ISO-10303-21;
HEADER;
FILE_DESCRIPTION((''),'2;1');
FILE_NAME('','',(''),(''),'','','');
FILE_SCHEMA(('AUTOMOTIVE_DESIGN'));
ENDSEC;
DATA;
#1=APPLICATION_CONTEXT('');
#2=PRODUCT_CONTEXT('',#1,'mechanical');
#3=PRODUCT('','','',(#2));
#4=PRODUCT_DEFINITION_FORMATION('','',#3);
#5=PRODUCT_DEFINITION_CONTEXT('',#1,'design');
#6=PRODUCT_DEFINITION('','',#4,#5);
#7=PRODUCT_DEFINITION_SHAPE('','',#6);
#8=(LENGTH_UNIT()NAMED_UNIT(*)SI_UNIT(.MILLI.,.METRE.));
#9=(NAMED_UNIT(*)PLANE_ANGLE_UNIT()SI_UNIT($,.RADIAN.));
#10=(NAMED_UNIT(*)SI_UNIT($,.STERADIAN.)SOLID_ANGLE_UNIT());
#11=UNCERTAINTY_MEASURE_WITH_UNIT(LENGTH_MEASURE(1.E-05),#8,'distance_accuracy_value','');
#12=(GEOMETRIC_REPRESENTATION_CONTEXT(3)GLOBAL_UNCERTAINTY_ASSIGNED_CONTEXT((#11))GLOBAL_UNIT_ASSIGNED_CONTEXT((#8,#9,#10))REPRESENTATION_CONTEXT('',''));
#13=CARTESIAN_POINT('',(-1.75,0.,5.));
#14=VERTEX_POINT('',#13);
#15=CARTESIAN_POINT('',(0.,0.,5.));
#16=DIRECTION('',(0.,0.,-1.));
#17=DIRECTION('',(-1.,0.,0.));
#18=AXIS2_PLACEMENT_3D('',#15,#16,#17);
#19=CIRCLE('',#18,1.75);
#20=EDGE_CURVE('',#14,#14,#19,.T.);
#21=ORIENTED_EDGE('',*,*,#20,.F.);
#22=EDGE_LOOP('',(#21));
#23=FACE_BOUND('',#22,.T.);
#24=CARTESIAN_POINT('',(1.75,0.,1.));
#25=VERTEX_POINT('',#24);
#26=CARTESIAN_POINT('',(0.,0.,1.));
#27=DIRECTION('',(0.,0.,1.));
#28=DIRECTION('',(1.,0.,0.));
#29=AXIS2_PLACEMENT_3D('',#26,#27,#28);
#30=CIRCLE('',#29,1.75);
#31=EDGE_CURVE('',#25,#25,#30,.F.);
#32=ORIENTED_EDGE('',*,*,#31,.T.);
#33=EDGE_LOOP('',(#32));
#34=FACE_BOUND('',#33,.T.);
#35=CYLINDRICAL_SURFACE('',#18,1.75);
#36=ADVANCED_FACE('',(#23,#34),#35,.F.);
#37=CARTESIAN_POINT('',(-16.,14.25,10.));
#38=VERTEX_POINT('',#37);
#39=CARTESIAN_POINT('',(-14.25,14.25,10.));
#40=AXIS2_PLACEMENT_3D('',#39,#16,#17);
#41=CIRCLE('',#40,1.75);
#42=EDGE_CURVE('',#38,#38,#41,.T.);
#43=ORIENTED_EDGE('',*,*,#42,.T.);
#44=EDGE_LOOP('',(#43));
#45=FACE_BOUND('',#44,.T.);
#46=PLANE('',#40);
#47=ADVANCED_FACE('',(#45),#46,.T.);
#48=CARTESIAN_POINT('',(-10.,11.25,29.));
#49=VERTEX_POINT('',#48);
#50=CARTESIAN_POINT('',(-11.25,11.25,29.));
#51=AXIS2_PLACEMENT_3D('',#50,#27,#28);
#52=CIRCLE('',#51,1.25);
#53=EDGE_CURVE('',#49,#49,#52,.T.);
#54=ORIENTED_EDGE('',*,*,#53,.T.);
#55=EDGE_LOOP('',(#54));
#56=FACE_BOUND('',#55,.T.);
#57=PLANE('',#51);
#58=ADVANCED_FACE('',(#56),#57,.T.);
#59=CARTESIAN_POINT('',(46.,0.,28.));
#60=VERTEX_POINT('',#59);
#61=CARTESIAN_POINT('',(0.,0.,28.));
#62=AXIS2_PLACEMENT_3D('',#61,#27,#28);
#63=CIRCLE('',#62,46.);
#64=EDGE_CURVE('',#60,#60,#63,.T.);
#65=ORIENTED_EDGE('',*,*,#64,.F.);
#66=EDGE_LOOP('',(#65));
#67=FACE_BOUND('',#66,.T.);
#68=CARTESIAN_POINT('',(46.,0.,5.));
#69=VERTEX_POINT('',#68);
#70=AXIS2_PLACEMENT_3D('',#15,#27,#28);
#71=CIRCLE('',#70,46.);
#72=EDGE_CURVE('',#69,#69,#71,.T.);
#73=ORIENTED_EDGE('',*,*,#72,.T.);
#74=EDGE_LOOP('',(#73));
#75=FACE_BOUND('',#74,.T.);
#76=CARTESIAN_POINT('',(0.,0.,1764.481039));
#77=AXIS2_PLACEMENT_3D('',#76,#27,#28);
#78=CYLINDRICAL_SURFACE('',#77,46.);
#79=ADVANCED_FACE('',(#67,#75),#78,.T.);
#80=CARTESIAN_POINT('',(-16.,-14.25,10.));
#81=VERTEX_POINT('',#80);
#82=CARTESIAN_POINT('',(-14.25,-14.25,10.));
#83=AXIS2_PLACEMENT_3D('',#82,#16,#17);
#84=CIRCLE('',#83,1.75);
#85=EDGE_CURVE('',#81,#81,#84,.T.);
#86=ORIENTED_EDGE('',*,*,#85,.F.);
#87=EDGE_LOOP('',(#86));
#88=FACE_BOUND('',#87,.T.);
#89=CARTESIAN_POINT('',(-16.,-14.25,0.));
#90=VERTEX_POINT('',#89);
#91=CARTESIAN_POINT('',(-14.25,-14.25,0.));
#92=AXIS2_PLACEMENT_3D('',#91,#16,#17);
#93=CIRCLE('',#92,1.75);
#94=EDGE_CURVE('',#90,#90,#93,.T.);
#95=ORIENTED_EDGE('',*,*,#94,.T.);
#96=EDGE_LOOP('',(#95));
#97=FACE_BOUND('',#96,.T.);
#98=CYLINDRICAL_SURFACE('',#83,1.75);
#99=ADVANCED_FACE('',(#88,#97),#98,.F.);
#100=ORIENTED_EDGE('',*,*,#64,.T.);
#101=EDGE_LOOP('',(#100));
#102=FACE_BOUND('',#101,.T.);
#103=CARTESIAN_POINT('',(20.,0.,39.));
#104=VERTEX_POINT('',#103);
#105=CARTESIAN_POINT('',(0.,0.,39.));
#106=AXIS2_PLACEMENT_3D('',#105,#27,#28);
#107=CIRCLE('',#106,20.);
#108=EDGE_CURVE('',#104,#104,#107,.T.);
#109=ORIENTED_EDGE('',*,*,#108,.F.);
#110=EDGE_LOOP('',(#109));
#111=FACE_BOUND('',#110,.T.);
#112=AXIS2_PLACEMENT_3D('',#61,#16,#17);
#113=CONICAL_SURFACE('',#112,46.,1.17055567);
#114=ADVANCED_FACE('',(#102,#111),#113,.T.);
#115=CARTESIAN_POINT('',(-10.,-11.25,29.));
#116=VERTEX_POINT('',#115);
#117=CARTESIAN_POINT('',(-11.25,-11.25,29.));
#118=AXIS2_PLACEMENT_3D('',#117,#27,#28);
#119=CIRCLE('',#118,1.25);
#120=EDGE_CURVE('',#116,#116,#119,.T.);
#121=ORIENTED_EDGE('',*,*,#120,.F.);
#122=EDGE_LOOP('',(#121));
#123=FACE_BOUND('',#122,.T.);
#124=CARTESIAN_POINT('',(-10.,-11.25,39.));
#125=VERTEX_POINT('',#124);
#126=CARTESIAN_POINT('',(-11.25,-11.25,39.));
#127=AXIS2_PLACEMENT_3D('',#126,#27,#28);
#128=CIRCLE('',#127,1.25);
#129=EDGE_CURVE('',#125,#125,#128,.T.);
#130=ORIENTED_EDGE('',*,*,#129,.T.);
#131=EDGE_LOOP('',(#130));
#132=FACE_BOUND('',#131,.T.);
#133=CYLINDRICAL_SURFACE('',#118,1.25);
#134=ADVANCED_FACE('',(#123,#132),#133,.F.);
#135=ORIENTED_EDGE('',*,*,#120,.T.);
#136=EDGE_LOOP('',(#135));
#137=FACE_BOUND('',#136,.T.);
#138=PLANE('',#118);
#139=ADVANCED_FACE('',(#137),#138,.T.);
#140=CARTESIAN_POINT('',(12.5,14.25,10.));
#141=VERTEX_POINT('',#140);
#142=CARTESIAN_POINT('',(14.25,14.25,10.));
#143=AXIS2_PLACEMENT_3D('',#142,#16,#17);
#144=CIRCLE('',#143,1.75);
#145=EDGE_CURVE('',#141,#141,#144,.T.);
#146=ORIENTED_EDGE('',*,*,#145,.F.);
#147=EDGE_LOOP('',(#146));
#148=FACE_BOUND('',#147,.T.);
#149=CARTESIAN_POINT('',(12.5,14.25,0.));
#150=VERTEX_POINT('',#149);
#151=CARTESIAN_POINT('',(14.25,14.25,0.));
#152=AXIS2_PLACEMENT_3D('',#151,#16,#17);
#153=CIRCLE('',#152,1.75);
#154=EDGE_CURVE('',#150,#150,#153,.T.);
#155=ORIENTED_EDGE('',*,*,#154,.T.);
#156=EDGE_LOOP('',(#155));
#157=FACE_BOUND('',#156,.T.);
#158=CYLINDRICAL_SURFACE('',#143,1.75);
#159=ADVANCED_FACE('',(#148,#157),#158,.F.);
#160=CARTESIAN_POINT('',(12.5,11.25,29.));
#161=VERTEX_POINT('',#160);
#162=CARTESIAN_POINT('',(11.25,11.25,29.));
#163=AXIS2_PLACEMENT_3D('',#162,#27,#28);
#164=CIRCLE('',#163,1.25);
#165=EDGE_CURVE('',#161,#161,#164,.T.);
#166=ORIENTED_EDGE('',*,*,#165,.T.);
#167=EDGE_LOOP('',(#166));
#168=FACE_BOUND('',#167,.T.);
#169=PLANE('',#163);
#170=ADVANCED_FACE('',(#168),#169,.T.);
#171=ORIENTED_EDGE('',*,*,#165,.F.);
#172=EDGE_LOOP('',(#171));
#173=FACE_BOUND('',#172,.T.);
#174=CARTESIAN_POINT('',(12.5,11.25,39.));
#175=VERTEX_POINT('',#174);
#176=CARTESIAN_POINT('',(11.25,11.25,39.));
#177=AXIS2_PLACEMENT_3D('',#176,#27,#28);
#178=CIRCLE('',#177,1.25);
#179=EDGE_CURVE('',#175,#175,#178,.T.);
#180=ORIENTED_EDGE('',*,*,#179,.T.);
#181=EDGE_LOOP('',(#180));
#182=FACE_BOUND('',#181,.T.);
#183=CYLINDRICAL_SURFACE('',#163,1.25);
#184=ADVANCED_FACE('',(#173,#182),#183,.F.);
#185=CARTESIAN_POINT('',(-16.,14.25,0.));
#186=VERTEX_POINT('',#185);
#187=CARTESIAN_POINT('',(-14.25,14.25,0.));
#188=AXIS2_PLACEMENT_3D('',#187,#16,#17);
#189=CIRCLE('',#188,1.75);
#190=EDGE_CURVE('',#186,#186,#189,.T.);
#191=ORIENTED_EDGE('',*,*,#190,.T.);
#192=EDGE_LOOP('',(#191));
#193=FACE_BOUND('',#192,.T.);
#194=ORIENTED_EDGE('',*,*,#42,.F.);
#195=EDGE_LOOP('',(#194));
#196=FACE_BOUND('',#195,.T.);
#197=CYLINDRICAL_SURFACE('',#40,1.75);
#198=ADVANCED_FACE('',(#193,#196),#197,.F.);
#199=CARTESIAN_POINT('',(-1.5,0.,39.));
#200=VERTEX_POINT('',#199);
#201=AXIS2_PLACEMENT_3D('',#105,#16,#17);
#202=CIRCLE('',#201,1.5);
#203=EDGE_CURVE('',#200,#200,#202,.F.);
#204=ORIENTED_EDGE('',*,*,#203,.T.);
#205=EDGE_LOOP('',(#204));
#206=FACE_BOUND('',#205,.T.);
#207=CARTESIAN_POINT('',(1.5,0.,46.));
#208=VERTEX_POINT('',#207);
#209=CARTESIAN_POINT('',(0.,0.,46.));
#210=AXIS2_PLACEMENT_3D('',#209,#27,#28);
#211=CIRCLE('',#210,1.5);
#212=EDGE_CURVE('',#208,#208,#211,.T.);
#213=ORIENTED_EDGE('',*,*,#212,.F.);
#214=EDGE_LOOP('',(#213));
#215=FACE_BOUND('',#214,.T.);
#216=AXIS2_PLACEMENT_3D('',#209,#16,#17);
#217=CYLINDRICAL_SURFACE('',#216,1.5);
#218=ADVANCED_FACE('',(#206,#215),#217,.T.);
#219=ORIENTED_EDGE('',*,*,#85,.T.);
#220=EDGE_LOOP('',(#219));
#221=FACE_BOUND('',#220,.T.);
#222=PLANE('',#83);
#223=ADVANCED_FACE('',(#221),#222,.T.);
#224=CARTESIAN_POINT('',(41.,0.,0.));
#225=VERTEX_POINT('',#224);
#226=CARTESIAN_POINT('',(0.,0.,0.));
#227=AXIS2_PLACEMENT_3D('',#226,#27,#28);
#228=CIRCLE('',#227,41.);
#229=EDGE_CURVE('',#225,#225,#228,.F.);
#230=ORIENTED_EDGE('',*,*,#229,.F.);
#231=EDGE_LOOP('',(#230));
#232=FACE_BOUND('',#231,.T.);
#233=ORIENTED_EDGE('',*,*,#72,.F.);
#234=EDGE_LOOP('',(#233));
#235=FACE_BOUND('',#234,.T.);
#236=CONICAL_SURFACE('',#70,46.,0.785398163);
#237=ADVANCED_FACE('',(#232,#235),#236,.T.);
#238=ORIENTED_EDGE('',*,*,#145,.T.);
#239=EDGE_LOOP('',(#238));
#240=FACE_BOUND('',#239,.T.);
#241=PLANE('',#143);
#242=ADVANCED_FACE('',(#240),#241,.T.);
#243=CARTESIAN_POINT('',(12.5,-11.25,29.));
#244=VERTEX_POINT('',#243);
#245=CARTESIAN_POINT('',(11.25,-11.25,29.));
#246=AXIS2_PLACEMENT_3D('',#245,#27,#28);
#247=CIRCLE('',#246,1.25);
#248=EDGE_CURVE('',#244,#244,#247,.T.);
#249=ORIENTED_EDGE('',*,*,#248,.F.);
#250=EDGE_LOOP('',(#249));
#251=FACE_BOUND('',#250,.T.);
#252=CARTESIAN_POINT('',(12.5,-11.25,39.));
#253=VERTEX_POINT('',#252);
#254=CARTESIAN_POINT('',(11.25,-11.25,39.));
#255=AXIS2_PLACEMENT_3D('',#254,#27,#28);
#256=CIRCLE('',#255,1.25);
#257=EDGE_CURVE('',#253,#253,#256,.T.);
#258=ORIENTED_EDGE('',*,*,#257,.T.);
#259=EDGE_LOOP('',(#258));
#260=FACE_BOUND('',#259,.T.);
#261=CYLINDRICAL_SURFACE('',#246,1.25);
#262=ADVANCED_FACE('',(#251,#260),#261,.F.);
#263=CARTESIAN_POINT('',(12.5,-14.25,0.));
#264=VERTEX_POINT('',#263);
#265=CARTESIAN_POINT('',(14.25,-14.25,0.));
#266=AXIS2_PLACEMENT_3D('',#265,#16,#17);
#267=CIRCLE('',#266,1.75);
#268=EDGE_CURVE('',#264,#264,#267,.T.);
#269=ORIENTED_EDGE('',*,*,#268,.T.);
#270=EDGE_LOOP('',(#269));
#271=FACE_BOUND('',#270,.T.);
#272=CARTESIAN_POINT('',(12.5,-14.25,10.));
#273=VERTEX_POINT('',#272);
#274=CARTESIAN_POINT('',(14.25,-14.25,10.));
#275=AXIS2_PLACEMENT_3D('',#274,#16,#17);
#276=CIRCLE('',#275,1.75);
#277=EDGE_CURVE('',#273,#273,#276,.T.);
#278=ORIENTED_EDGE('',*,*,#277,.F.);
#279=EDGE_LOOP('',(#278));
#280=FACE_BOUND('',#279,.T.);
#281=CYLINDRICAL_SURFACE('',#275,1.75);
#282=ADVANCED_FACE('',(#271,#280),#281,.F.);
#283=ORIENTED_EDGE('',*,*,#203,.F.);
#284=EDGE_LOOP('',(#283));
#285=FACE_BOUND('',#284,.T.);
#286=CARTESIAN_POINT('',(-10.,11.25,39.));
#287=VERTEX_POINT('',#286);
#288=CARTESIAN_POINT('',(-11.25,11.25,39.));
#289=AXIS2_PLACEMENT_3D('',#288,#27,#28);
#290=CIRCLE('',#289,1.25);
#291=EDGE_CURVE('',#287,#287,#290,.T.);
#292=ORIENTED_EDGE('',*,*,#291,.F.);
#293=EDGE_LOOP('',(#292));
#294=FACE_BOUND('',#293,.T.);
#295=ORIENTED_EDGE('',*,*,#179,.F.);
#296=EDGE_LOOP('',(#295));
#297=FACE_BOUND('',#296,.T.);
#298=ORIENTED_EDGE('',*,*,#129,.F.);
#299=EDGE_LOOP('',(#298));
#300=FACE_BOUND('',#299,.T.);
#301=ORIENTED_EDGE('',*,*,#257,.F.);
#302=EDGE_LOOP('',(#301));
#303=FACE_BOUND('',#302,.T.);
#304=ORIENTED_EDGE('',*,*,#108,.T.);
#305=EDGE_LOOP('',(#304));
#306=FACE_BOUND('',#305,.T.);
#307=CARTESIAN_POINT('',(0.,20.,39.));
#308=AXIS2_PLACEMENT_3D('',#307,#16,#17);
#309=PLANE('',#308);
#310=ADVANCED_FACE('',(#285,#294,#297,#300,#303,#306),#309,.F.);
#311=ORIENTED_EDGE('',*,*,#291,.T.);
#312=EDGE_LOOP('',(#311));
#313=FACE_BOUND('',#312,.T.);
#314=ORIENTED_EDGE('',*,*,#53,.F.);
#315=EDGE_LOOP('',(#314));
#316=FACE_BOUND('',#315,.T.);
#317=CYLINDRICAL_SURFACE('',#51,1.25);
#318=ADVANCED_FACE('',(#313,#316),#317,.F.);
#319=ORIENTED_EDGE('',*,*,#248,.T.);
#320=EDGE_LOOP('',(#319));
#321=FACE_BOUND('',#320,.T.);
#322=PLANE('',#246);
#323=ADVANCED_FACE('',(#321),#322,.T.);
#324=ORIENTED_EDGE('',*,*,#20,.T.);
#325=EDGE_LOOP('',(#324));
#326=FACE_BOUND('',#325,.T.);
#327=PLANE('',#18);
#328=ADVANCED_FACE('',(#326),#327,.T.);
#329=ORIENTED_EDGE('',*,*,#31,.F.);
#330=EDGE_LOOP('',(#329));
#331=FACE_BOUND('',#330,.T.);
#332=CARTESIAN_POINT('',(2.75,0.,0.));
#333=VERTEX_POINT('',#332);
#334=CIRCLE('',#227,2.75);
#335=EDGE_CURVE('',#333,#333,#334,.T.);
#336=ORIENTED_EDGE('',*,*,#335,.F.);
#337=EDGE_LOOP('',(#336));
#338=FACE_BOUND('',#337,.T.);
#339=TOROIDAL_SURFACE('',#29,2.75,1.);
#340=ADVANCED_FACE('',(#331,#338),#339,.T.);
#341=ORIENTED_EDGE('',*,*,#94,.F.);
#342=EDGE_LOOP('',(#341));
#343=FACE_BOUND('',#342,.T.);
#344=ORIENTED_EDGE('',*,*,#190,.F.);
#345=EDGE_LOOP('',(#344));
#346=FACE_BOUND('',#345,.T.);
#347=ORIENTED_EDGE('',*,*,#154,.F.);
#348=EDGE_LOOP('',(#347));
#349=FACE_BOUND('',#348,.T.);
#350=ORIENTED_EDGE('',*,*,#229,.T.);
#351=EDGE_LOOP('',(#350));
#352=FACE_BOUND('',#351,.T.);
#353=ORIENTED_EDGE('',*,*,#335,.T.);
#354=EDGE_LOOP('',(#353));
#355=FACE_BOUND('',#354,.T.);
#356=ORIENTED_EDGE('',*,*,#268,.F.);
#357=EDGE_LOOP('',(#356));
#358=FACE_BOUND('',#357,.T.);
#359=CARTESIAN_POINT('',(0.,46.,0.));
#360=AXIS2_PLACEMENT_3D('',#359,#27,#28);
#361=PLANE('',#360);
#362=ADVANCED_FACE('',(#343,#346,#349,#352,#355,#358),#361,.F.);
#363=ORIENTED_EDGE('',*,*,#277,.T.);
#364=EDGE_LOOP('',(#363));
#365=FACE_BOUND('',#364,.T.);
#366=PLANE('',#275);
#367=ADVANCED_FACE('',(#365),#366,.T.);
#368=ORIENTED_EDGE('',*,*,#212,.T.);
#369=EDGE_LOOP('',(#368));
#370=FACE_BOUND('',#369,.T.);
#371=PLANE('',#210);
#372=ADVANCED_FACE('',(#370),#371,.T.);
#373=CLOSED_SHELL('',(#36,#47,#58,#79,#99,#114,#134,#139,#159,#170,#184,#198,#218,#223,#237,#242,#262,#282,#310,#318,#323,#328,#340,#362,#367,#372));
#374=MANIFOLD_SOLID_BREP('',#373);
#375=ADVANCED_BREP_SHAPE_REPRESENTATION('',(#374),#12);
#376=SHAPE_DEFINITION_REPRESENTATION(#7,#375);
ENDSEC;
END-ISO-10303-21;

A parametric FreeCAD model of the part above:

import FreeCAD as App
import Part
import Sketcher
from FreeCAD import Vector


def edges_at(feature, points):
    """Names of the edges that pass closest to the given points."""
    edges = feature.Shape.Edges
    near = lambda p: min(range(len(edges)), key=lambda i: edges[i].distToShape(Part.Vertex(*p))[0])
    return sorted({f"Edge{near(p) + 1}" for p in points})


def add_polygon(sketch, points):
    """Adds a closed chain of lines whose ends are joined by coincident constraints."""
    first, n = sketch.GeometryCount, len(points)
    for a, b in zip(points, points[1:] + points[:1]):
        sketch.addGeometry(Part.LineSegment(App.Vector(*a, 0), App.Vector(*b, 0)), False)
    for i in range(n):
        sketch.addConstraint(Sketcher.Constraint("Coincident", first + i, 2, first + (i + 1) % n, 1))

doc = App.newDocument("Part")
body = doc.addObject("PartDesign::Body", "Body")

sketch1 = doc.addObject("Sketcher::SketchObject", "Sketch")
body.addObject(sketch1)
sketch1.AttachmentSupport = (doc.YZ_Plane, [""])
sketch1.MapMode = "FlatFace"
add_polygon(sketch1, [(46, 0), (46, 28), (20, 39), (0, 39), (0, 0)])
sketch1.addConstraint([
    Sketcher.Constraint("Vertical", 0),
    Sketcher.Constraint("Horizontal", 2),
    Sketcher.Constraint("Vertical", 3),
    Sketcher.Constraint("Horizontal", 4),
    Sketcher.Constraint("Coincident", 3, 2, -1, 1),
    Sketcher.Constraint("DistanceX", 2, 2, 2, 1, 20.0),
    Sketcher.Constraint("DistanceX", 4, 1, 4, 2, 46.0),
    Sketcher.Constraint("DistanceY", 0, 1, 0, 2, 28.0),
    Sketcher.Constraint("DistanceY", 3, 2, 3, 1, 39.0),
])
revolution = doc.addObject("PartDesign::Revolution", "Revolution")
body.addObject(revolution)
revolution.Profile = sketch1
revolution.ReferenceAxis = (sketch1, ["V_Axis"])
revolution.Angle = 360

sketch2 = doc.addObject("Sketcher::SketchObject", "Sketch001")
body.addObject(sketch2)
sketch2.AttachmentSupport = (doc.XY_Plane, [""])
sketch2.MapMode = "FlatFace"
sketch2.AttachmentOffset = App.Placement(Vector(0, 0, 39), App.Rotation())
sketch2.addGeometry([
    Part.Circle(Vector(-11.25, 11.25, 0), Vector(0, 0, 1), 1.25),
    Part.Circle(Vector(11.25, 11.25, 0), Vector(0, 0, 1), 1.25),
    Part.Circle(Vector(11.25, -11.25, 0), Vector(0, 0, 1), 1.25),
    Part.Circle(Vector(-11.25, -11.25, 0), Vector(0, 0, 1), 1.25),
], False)
sketch2.addConstraint([
    Sketcher.Constraint("Equal", 0, 1),
    Sketcher.Constraint("Equal", 1, 2),
    Sketcher.Constraint("Equal", 2, 3),
    Sketcher.Constraint("Symmetric", 0, 3, 2, 3, -1, 1),
    Sketcher.Constraint("Symmetric", 1, 3, 3, 3, -1, 1),
    Sketcher.Constraint("Symmetric", 0, 3, 1, 3, -2),
    Sketcher.Constraint("Diameter", 0, 2.5),
    Sketcher.Constraint("DistanceX", 0, 3, 1, 3, 22.5),
    Sketcher.Constraint("DistanceY", 2, 3, 1, 3, 22.5),
])
pocket1 = doc.addObject("PartDesign::Pocket", "Pocket")
body.addObject(pocket1)
pocket1.Profile = sketch2
pocket1.Length = 10

sketch3 = doc.addObject("Sketcher::SketchObject", "Sketch002")
body.addObject(sketch3)
sketch3.AttachmentSupport = (doc.XY_Plane, [""])
sketch3.MapMode = "FlatFace"
sketch3.addGeometry([
    Part.Circle(Vector(14.25, 14.25, 0), Vector(0, 0, 1), 1.75),
    Part.Circle(Vector(-14.25, 14.25, 0), Vector(0, 0, 1), 1.75),
    Part.Circle(Vector(-14.25, -14.25, 0), Vector(0, 0, 1), 1.75),
    Part.Circle(Vector(14.25, -14.25, 0), Vector(0, 0, 1), 1.75),
], False)
sketch3.addConstraint([
    Sketcher.Constraint("Equal", 0, 1),
    Sketcher.Constraint("Equal", 1, 2),
    Sketcher.Constraint("Equal", 2, 3),
    Sketcher.Constraint("Symmetric", 0, 3, 2, 3, -1, 1),
    Sketcher.Constraint("Symmetric", 1, 3, 3, 3, -1, 1),
    Sketcher.Constraint("Symmetric", 0, 3, 1, 3, -2),
    Sketcher.Constraint("Diameter", 0, 3.5),
    Sketcher.Constraint("DistanceX", 1, 3, 0, 3, 28.5),
    Sketcher.Constraint("DistanceY", 2, 3, 1, 3, 28.5),
])
pocket2 = doc.addObject("PartDesign::Pocket", "Pocket001")
body.addObject(pocket2)
pocket2.Profile = sketch3
pocket2.Length = 10
pocket2.Reversed = True

sketch4 = doc.addObject("Sketcher::SketchObject", "Sketch003")
body.addObject(sketch4)
sketch4.AttachmentSupport = (doc.XY_Plane, [""])
sketch4.MapMode = "FlatFace"
sketch4.addGeometry(Part.Circle(Vector(0, 0, 0), Vector(0, 0, 1), 1.75), False)
sketch4.addConstraint([
    Sketcher.Constraint("Coincident", 0, 3, -1, 1),
    Sketcher.Constraint("Diameter", 0, 3.5),
])
pocket3 = doc.addObject("PartDesign::Pocket", "Pocket002")
body.addObject(pocket3)
pocket3.Profile = sketch4
pocket3.Length = 5
pocket3.Reversed = True
doc.recompute()

fillet = doc.addObject("PartDesign::Fillet", "Fillet")
body.addObject(fillet)
fillet.Base = (pocket3, edges_at(pocket3, [(1.75, 0, 0)]))
fillet.Radius = 1

sketch5 = doc.addObject("Sketcher::SketchObject", "Sketch004")
body.addObject(sketch5)
sketch5.AttachmentSupport = (doc.XY_Plane, [""])
sketch5.MapMode = "FlatFace"
sketch5.AttachmentOffset = App.Placement(Vector(0, 0, 39), App.Rotation())
sketch5.addGeometry(Part.Circle(Vector(0, 0, 0), Vector(0, 0, 1), 1.5), False)
sketch5.addConstraint([
    Sketcher.Constraint("Coincident", 0, 3, -1, 1),
    Sketcher.Constraint("Diameter", 0, 3.0),
])
pad1 = doc.addObject("PartDesign::Pad", "Pad")
body.addObject(pad1)
pad1.Profile = sketch5
pad1.Length = 7
doc.recompute()

chamfer = doc.addObject("PartDesign::Chamfer", "Chamfer")
body.addObject(chamfer)
chamfer.Base = (pad1, edges_at(pad1, [(-46, 0, 0)]))
chamfer.Size = 5

doc.recompute()
